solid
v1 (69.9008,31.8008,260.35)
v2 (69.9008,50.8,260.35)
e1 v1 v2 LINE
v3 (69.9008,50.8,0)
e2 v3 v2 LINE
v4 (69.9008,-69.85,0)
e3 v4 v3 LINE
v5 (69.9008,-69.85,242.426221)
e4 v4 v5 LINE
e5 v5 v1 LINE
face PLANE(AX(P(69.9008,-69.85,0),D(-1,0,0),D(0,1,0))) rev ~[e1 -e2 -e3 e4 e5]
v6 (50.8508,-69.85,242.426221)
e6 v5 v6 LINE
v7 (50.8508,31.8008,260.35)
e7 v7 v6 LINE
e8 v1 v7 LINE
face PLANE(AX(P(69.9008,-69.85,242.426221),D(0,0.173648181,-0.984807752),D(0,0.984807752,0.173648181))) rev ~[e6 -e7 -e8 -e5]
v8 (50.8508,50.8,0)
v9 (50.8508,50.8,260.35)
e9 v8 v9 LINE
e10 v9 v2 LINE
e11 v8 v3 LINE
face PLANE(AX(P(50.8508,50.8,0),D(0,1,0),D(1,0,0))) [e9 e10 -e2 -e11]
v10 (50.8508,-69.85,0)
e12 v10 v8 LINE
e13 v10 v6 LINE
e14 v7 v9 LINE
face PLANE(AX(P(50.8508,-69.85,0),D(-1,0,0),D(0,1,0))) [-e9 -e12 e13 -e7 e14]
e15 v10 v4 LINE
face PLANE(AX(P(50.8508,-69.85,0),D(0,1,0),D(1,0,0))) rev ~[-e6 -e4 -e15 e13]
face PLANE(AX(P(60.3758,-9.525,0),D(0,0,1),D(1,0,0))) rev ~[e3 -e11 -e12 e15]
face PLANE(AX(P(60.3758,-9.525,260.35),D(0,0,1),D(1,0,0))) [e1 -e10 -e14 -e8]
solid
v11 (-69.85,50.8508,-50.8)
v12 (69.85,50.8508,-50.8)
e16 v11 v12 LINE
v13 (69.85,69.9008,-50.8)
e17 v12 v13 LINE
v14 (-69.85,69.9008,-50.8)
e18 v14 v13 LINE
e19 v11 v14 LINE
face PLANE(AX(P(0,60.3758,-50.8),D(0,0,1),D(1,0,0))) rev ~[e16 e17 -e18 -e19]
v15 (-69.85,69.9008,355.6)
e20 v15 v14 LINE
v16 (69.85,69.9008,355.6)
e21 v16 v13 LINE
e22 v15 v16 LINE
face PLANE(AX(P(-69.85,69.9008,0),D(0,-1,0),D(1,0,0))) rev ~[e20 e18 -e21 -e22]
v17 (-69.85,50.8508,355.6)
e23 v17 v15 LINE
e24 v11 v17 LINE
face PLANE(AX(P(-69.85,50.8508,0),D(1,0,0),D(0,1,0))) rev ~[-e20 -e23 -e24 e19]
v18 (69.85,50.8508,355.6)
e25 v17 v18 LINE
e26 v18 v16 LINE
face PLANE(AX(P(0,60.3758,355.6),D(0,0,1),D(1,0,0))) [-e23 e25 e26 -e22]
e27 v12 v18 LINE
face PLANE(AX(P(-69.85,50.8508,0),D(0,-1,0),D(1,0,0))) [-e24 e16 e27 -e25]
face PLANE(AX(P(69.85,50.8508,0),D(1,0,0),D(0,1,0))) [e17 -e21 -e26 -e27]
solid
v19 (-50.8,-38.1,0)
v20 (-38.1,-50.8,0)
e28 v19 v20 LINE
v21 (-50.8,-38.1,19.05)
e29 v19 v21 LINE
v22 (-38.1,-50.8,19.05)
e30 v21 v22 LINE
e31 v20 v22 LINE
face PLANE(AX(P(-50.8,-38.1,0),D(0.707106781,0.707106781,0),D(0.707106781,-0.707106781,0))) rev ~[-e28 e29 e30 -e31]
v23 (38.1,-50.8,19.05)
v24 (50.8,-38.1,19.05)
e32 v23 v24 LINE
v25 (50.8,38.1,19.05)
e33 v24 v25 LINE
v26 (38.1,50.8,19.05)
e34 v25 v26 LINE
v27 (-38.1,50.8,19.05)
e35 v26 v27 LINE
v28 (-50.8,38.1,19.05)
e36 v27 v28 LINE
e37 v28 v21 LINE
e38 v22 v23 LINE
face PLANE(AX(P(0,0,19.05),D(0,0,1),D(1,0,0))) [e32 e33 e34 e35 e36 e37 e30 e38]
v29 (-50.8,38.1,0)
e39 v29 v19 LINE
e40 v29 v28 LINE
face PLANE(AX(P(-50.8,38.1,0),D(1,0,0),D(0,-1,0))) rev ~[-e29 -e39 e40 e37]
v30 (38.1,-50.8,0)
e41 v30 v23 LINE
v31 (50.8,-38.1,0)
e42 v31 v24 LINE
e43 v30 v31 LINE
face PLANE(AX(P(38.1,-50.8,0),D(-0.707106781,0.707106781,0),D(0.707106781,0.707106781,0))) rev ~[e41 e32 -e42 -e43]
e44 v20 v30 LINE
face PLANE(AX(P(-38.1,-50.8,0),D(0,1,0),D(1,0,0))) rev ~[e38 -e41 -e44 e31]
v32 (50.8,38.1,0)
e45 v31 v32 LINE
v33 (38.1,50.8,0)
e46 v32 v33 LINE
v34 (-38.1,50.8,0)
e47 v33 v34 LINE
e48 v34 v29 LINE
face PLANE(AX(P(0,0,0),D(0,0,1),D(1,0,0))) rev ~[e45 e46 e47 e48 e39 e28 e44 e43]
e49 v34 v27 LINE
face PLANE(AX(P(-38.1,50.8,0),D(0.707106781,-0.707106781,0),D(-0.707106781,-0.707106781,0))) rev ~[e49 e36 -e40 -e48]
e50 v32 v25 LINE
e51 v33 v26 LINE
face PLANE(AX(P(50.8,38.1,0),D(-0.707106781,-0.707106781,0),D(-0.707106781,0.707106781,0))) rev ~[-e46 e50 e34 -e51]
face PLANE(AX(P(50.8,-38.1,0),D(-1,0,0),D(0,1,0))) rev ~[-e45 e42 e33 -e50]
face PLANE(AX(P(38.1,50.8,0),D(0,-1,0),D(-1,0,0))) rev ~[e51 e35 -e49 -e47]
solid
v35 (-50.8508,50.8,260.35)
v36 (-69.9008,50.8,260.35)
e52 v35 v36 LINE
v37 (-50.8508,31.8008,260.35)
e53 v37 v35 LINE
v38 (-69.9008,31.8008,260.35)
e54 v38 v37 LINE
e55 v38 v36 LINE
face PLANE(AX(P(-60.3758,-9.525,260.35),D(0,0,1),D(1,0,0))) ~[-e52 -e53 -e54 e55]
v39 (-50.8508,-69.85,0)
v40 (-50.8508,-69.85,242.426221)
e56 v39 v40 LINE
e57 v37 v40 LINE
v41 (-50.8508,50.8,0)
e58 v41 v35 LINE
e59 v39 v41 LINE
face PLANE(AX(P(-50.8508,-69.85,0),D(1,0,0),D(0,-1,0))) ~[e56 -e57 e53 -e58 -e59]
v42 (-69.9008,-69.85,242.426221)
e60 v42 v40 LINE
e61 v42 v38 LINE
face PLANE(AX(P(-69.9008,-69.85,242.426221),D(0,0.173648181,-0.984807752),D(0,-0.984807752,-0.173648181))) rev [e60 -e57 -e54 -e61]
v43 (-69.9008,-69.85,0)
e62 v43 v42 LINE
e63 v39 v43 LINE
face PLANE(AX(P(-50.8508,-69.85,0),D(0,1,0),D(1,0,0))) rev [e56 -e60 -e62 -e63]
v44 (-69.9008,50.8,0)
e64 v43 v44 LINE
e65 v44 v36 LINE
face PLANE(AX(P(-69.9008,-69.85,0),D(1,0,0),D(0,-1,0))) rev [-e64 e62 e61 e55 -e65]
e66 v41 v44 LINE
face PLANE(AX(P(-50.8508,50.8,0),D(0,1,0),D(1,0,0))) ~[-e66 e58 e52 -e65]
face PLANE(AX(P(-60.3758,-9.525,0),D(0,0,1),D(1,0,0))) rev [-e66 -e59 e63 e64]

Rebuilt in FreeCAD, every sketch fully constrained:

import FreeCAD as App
import Part
import Sketcher

V = App.Vector
Q = App.Units.Quantity


def add_polygon(sketch, points):
    """Adds a closed chain of lines whose ends are joined by coincident constraints."""
    first, n = sketch.GeometryCount, len(points)
    for a, b in zip(points, points[1:] + points[:1]):
        sketch.addGeometry(Part.LineSegment(App.Vector(*a, 0), App.Vector(*b, 0)), False)
    for i in range(n):
        sketch.addConstraint(Sketcher.Constraint("Coincident", first + i, 2, first + (i + 1) % n, 1))

doc = App.newDocument("Part")
body = doc.addObject("PartDesign::Body", "Body")

# Sketch on XY plane
sketch1 = body.newObject("Sketcher::SketchObject", "Sketch")
sketch1.AttachmentSupport = (doc.getObject("XY_Plane"), [""])
sketch1.MapMode = "FlatFace"
add_polygon(sketch1, [(-38, -51), (38, -51), (51, -38), (51, 38), (38, 51), (-38, 51), (-51, 38), (-51, -38)])  # lines 0-7
sketch1.addConstraint([
    Sketcher.Constraint("Horizontal", 0),
    Sketcher.Constraint("Vertical", 2),
    Sketcher.Constraint("Horizontal", 4),
    Sketcher.Constraint("Vertical", 6),
    Sketcher.Constraint("Symmetric", 0, 2, 4, 2, -1, 1),
    Sketcher.Constraint("Symmetric", 1, 2, 5, 2, -1, 1),
    Sketcher.Constraint("Perpendicular", 1, 3),
    Sketcher.Constraint("Perpendicular", 5, 7),
    Sketcher.Constraint("Horizontal", 2, 2, 5, 2),
    Sketcher.Constraint("Horizontal", 1, 2, 6, 2),
    Sketcher.Constraint("Vertical", 0, 2, 3, 2),
    Sketcher.Constraint("Equal", 4, 2),
    Sketcher.Constraint("DistanceX", 0, 1, 0, 2, Q("3 in")),
    Sketcher.Constraint("DistanceY", 0, 2, -1, 1, Q("2 in")),
])
pad1 = body.newObject("PartDesign::Pad", "Pad")
pad1.Profile = sketch1
pad1.Length = Q("0.75 in")
body2 = doc.addObject("PartDesign::Body", "Body001")

# Sketch on XY plane
sketch2 = body2.newObject("Sketcher::SketchObject", "Sketch001")
sketch2.AttachmentSupport = (doc.getObject("XY_Plane001"), [""])
sketch2.MapMode = "FlatFace"
add_polygon(sketch2, [(-70, 70), (-70, 51), (70, 51), (70, 70)])  # lines 0-3
sketch2.addConstraint([
    Sketcher.Constraint("Vertical", 0),
    Sketcher.Constraint("Horizontal", 1),
    Sketcher.Constraint("Vertical", 2),
    Sketcher.Constraint("Horizontal", 3),
    Sketcher.Constraint("DistanceX", 1, 1, 1, 2, Q("5.5 in")),
    Sketcher.Constraint("DistanceY", 0, 2, 0, 1, Q("0.75 in")),
    Sketcher.Constraint("DistanceX", 0, 2, -1, 1, Q("2.75 in")),
    Sketcher.Constraint("DistanceY", -1, 1, 0, 2, Q("2.002 in")),
])
pad2 = body2.newObject("PartDesign::Pad", "Pad001")
pad2.Profile = sketch2
pad2.Type = "TwoLengths"
pad2.Length = Q("14 in")
pad2.Length2 = Q("2 in")
body3 = doc.addObject("PartDesign::Body", "Body002")

# Sketch on XY plane
sketch3 = body3.newObject("Sketcher::SketchObject", "Sketch002")
sketch3.AttachmentSupport = (doc.getObject("XY_Plane002"), [""])
sketch3.MapMode = "FlatFace"
add_polygon(sketch3, [(51, 51), (51, -70), (70, -70), (70, 51)])  # lines 0-3
sketch3.addConstraint([
    Sketcher.Constraint("Vertical", 0),
    Sketcher.Constraint("Horizontal", 1),
    Sketcher.Constraint("Vertical", 2),
    Sketcher.Constraint("Horizontal", 3),
    Sketcher.Constraint("DistanceY", -1, 1, 2, 2, Q("2 in")),
    Sketcher.Constraint("DistanceX", 1, 1, 1, 2, Q("0.75 in")),
    Sketcher.Constraint("DistanceY", 0, 2, 0, 1, Q("4.75 in")),
    Sketcher.Constraint("DistanceX", -1, 1, 0, 2, Q("2.002 in")),
])
pad3 = body3.newObject("PartDesign::Pad", "Pad002")
pad3.Profile = sketch3
pad3.Length = Q("10.25 in")

# Sketch on YZ plane
sketch4 = body3.newObject("Sketcher::SketchObject", "Sketch003")
sketch4.AttachmentSupport = (doc.getObject("YZ_Plane002"), [""])
sketch4.MapMode = "FlatFace"
sketch4.AttachmentOffset = App.Placement(V(0, 0, 2.752 * 25.4), App.Rotation())
add_polygon(sketch4, [(32, 260), (-70, 260), (-70, 242)])  # lines 0-2
sketch4.addConstraint([
    Sketcher.Constraint("Horizontal", 0),
    Sketcher.Constraint("Vertical", 1),
    Sketcher.Constraint("Angle", 2, Q("10 deg")),
    Sketcher.Constraint("DistanceX", 0, 2, 0, 1, Q("4.002 in")),
    Sketcher.Constraint("DistanceX", 0, 2, -1, 1, Q("2.75 in")),
    Sketcher.Constraint("DistanceY", -1, 1, 0, 2, Q("10.25 in")),
])
pocket1 = body3.newObject("PartDesign::Pocket", "Pocket")
pocket1.Profile = sketch4
pocket1.Type = "ThroughAll"
body4 = doc.addObject("PartDesign::Body", "Body003")
doc.recompute()

mirroring = doc.addObject("Part::Mirroring", "Mirroring")
mirroring.Source = body3
mirroring.Base = V(0, 0, 0)
mirroring.Normal = V(1, 0, 0)
body4.BaseFeature = mirroring
doc.recompute()
mirroring.Visibility = False

doc.recompute()
